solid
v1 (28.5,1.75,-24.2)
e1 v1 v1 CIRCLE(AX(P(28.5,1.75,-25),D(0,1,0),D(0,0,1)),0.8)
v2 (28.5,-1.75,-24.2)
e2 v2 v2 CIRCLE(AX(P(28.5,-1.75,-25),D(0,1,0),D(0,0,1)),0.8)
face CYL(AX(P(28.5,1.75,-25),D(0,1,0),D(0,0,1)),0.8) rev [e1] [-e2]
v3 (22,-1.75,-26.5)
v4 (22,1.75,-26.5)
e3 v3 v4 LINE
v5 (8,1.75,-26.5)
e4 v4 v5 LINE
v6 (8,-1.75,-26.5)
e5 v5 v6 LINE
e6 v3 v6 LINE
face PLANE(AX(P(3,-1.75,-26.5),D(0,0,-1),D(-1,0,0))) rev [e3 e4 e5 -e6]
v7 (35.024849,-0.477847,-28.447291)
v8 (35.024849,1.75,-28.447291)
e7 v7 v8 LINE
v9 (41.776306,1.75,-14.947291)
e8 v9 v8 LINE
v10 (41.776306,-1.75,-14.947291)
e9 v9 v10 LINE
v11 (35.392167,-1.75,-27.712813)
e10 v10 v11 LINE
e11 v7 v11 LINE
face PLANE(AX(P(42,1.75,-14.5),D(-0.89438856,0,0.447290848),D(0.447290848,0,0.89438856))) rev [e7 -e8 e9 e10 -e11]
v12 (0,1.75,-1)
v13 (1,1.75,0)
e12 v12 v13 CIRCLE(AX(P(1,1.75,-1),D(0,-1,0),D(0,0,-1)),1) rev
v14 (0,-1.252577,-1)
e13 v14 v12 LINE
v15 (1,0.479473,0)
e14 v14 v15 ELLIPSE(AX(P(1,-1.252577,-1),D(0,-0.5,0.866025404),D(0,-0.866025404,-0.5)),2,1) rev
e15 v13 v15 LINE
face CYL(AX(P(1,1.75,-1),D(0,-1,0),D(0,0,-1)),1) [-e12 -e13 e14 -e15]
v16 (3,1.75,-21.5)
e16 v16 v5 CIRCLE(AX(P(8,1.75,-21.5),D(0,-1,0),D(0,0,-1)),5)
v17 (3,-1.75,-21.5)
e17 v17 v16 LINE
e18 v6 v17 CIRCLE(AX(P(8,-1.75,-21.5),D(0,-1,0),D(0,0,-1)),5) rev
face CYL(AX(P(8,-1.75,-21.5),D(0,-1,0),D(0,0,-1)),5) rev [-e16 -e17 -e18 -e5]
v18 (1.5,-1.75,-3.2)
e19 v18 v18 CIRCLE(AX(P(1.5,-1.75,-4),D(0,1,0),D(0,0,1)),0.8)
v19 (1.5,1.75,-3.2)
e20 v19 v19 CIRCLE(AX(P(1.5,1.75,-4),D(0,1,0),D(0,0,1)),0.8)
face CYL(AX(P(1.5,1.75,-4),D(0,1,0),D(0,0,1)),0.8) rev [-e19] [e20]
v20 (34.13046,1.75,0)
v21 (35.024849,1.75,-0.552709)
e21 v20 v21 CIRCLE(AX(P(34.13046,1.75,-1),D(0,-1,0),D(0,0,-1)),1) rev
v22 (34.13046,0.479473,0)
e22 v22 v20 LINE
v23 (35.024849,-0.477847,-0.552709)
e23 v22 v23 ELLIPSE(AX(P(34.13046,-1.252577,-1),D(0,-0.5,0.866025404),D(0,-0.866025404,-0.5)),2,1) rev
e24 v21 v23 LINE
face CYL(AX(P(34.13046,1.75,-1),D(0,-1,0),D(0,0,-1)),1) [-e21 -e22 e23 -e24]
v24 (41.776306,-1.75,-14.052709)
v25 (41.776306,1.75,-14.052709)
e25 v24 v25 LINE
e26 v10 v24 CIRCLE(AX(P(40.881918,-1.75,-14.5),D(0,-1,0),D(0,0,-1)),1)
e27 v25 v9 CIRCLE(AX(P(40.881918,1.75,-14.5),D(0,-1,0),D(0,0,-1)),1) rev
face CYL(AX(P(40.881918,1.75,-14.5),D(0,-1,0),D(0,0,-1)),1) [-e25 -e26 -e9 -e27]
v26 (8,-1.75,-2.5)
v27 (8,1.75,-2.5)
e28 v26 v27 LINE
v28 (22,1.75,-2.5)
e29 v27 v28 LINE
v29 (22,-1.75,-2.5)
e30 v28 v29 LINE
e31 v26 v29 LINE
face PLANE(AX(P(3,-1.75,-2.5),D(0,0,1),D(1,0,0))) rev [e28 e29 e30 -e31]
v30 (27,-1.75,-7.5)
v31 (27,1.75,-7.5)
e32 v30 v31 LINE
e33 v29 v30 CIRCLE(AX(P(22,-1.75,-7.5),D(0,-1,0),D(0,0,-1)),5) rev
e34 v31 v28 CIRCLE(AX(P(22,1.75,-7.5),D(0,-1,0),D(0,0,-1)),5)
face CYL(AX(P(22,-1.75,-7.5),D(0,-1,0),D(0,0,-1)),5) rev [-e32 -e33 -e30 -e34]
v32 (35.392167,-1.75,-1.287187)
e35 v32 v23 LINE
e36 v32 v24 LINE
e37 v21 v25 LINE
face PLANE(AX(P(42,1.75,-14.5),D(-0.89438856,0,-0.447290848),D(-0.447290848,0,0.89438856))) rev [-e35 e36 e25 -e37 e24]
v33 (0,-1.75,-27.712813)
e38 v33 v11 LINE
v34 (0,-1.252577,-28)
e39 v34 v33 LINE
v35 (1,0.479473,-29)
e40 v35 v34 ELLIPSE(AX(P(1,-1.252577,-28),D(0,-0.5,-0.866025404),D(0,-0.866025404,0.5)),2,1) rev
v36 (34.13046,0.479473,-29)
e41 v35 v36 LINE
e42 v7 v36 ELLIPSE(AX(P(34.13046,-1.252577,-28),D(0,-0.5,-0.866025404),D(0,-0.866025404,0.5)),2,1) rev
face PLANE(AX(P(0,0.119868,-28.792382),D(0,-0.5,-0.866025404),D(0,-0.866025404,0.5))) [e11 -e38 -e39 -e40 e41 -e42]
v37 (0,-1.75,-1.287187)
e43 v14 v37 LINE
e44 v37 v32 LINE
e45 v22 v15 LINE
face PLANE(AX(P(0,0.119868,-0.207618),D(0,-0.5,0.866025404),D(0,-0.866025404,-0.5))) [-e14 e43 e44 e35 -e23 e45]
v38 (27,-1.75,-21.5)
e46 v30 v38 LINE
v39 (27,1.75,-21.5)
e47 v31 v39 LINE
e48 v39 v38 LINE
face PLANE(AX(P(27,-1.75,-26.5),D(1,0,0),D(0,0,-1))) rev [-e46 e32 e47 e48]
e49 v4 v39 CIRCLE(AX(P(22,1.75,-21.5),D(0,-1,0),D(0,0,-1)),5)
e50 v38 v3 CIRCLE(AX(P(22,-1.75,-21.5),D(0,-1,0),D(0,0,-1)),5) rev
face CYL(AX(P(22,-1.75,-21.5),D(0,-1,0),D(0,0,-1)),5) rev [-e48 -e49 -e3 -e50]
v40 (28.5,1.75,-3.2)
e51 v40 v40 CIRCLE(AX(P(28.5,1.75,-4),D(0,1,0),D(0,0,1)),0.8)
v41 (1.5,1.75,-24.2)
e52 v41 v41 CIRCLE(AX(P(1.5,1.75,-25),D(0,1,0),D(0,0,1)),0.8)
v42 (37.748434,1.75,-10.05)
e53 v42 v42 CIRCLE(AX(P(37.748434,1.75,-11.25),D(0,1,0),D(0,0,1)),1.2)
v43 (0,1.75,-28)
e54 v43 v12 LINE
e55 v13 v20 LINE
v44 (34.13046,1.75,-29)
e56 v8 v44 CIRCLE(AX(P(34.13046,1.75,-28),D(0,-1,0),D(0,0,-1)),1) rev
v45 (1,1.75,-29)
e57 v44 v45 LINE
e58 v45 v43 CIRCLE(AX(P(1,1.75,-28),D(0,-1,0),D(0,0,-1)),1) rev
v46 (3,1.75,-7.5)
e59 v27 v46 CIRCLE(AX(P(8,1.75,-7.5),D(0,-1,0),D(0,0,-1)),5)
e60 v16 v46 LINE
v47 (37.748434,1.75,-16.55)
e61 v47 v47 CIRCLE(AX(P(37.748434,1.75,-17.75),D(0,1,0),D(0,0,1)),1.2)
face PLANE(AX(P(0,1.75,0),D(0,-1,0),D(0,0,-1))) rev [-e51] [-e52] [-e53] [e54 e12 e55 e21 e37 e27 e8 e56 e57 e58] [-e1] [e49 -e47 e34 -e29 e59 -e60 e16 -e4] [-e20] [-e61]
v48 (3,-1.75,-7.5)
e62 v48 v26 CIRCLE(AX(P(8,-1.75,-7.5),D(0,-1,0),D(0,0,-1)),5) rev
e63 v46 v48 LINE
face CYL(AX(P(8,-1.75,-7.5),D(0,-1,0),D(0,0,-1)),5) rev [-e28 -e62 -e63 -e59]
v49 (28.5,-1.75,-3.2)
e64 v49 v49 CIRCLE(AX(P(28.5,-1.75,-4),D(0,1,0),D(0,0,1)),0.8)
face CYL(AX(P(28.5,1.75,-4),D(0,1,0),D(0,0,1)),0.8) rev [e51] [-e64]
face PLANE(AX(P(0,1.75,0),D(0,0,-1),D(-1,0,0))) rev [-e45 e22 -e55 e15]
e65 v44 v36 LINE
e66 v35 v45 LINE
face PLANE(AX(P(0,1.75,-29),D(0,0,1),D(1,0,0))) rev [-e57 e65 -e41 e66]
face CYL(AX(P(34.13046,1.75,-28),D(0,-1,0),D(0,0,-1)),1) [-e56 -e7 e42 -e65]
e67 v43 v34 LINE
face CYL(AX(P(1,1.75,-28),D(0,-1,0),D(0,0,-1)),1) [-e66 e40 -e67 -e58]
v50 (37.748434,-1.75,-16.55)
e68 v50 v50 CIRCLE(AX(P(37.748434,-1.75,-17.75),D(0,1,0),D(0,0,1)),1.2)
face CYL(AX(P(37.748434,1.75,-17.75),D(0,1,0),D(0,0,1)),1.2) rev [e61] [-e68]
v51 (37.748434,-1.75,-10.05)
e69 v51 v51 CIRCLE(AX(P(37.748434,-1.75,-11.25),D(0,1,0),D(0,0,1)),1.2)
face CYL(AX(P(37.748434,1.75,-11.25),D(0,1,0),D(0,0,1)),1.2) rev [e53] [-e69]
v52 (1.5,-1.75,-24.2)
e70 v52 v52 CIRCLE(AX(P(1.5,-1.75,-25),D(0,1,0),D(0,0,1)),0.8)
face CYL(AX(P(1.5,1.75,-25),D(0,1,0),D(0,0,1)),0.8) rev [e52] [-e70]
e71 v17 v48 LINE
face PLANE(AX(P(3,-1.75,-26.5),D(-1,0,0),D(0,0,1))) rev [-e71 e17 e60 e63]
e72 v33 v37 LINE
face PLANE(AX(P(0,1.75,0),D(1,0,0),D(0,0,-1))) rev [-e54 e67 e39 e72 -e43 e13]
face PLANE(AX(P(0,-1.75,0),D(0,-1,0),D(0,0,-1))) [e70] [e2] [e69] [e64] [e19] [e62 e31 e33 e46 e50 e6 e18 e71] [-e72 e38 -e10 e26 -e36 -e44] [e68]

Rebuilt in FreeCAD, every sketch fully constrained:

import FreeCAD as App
import Part
import Sketcher
Q = App.Units.Quantity


def edges_at(feature, points):
    """Names of the edges that pass closest to the given points."""
    edges = feature.Shape.Edges
    near = lambda p: min(range(len(edges)), key=lambda i: edges[i].distToShape(Part.Vertex(*p))[0])
    return sorted({f"Edge{near(p) + 1}" for p in points})

doc = App.newDocument("Part")
params = doc.addObject("Spreadsheet::Sheet", "Params")
for row, (alias, value) in enumerate([
    ("sketch1_height", "29 mm"),
    ("pad1_length", "3.5 mm"),
    ("sketch2_width", "24 mm"),
    ("fillet_radius", "5 mm"),
    ("sketch3_diameter", "1.6 mm"),
    ("hole_diameter", "1.6 mm"),
    ("fillet2_radius", "1 mm"),
    ("sketch5_diameter", "2.4 mm"),
    ("hole2_diameter", "2.4 mm"),
], start=1):
    params.set(f"A{row}", alias)
    params.set(f"B{row}", "=" + value)
    params.setAlias(f"B{row}", alias)

body = doc.addObject("PartDesign::Body", "Body")

sketch1 = doc.addObject("Sketcher::SketchObject", "Sketch")
body.addObject(sketch1)
sketch1.AttachmentSupport = (doc.XZ_Plane, [""])
sketch1.MapMode = "FlatFace"
sketch1.addGeometry(Part.LineSegment(App.Vector(0, 0, 0), App.Vector(35, 0, 0)), False)
sketch1.addGeometry(Part.LineSegment(App.Vector(35, 0, 0), App.Vector(42, -14, 0)), False)
sketch1.addGeometry(Part.LineSegment(App.Vector(42, -14, 0), App.Vector(35, -29, 0)), False)
sketch1.addGeometry(Part.LineSegment(App.Vector(35, -29, 0), App.Vector(0, -29, 0)), False)
sketch1.addGeometry(Part.LineSegment(App.Vector(0, -29, 0), App.Vector(0, 0, 0)), False)
sketch1.addConstraint(Sketcher.Constraint("Coincident", 0, 2, 1, 1))
sketch1.addConstraint(Sketcher.Constraint("Coincident", 1, 2, 2, 1))
sketch1.addConstraint(Sketcher.Constraint("Coincident", 2, 2, 3, 1))
sketch1.addConstraint(Sketcher.Constraint("Coincident", 3, 2, 4, 1))
sketch1.addConstraint(Sketcher.Constraint("Coincident", 4, 2, 0, 1))
sketch1.addConstraint(Sketcher.Constraint("Horizontal", 0))
sketch1.addConstraint(Sketcher.Constraint("Horizontal", 3))
sketch1.addConstraint(Sketcher.Constraint("Vertical", 4))
sketch1.addConstraint(Sketcher.Constraint("Coincident", 4, 2, -1, 1))
sketch1.addConstraint(Sketcher.Constraint("Vertical", 0, 2, 2, 2))
sketch1.addConstraint(Sketcher.Constraint("Equal", 1, 2))
sketch1.addConstraint(Sketcher.Constraint("DistanceY", 4, 1, 4, 2, Q("29 mm")))
sketch1.addConstraint(Sketcher.Constraint("DistanceX", -1, 1, 1, 2, Q("42 mm")))
sketch1.addConstraint(Sketcher.Constraint("Angle", 1, Q("-63.43 deg")))
sketch1.setExpression("Constraints[11]", "Params.sketch1_height")
pad1 = doc.addObject("PartDesign::Pad", "Pad")
body.addObject(pad1)
pad1.Profile = sketch1
pad1.setExpression("Length", "Params.pad1_length")
pad1.Midplane = True

sketch2 = doc.addObject("Sketcher::SketchObject", "Sketch001")
body.addObject(sketch2)
sketch2.AttachmentSupport = (doc.XZ_Plane, [""])
sketch2.MapMode = "FlatFace"
sketch2.addGeometry(Part.LineSegment(App.Vector(3, -26, 0), App.Vector(3, -2, 0)), False)
sketch2.addGeometry(Part.LineSegment(App.Vector(3, -2, 0), App.Vector(27, -2, 0)), False)
sketch2.addGeometry(Part.LineSegment(App.Vector(27, -2, 0), App.Vector(27, -26, 0)), False)
sketch2.addGeometry(Part.LineSegment(App.Vector(27, -26, 0), App.Vector(3, -26, 0)), False)
sketch2.addConstraint(Sketcher.Constraint("Coincident", 0, 2, 1, 1))
sketch2.addConstraint(Sketcher.Constraint("Coincident", 1, 2, 2, 1))
sketch2.addConstraint(Sketcher.Constraint("Coincident", 2, 2, 3, 1))
sketch2.addConstraint(Sketcher.Constraint("Coincident", 3, 2, 0, 1))
sketch2.addConstraint(Sketcher.Constraint("Vertical", 0))
sketch2.addConstraint(Sketcher.Constraint("Horizontal", 1))
sketch2.addConstraint(Sketcher.Constraint("Vertical", 2))
sketch2.addConstraint(Sketcher.Constraint("Horizontal", 3))
sketch2.addConstraint(Sketcher.Constraint("Equal", 3, 0))
sketch2.addConstraint(Sketcher.Constraint("DistanceX", 1, 1, 1, 2, Q("24 mm")))
sketch2.addConstraint(Sketcher.Constraint("DistanceX", -1, 1, 0, 2, Q("3 mm")))
sketch2.addConstraint(Sketcher.Constraint("DistanceY", 0, 2, -1, 1, Q("2.5 mm")))
sketch2.setExpression("Constraints[9]", "Params.sketch2_width")
pocket1 = doc.addObject("PartDesign::Pocket", "Pocket")
body.addObject(pocket1)
pocket1.Profile = sketch2
pocket1.Type = "ThroughAll"
pocket1.Midplane = True
doc.recompute()

fillet = doc.addObject("PartDesign::Fillet", "Fillet")
body.addObject(fillet)
fillet.Base = (pocket1, edges_at(pocket1, [
    (3, 0, -2.5),
    (3, 0, -26.5),
    (27, 0, -26.5),
    (27, 0, -2.5),
]))
fillet.setExpression("Radius", "Params.fillet_radius")

sketch3 = doc.addObject("Sketcher::SketchObject", "Sketch002")
body.addObject(sketch3)
sketch3.AttachmentSupport = (doc.XZ_Plane, [""])
sketch3.MapMode = "FlatFace"
sketch3.AttachmentOffset = App.Placement(App.Vector(0, 0, -1.75), App.Rotation())
sketch3.addGeometry(Part.Circle(App.Vector(1.5, -25, 0), App.Vector(0, 0, 1), 0.8), False)
sketch3.addGeometry(Part.Circle(App.Vector(28.5, -25, 0), App.Vector(0, 0, 1), 0.8), False)
sketch3.addGeometry(Part.Circle(App.Vector(37.7, -17.8, 0), App.Vector(0, 0, 1), 0.8), False)
sketch3.addGeometry(Part.Circle(App.Vector(37.7, -11.2, 0), App.Vector(0, 0, 1), 0.8), False)
sketch3.addGeometry(Part.Circle(App.Vector(28.5, -4, 0), App.Vector(0, 0, 1), 0.8), False)
sketch3.addGeometry(Part.Circle(App.Vector(1.5, -4, 0), App.Vector(0, 0, 1), 0.8), False)
sketch3.addConstraint(Sketcher.Constraint("Equal", 0, 1))
sketch3.addConstraint(Sketcher.Constraint("Equal", 1, 2))
sketch3.addConstraint(Sketcher.Constraint("Equal", 2, 3))
sketch3.addConstraint(Sketcher.Constraint("Equal", 3, 4))
sketch3.addConstraint(Sketcher.Constraint("Equal", 4, 5))
sketch3.addConstraint(Sketcher.Constraint("Horizontal", 0, 3, 1, 3))
sketch3.addConstraint(Sketcher.Constraint("Horizontal", 4, 3, 5, 3))
sketch3.addConstraint(Sketcher.Constraint("Vertical", 2, 3, 3, 3))
sketch3.addConstraint(Sketcher.Constraint("Vertical", 1, 3, 4, 3))
sketch3.addConstraint(Sketcher.Constraint("Vertical", 0, 3, 5, 3))
sketch3.addConstraint(Sketcher.Constraint("Diameter", 0, Q("1.6 mm")))
sketch3.addConstraint(Sketcher.Constraint("DistanceY", 0, 3, -1, 1, Q("25 mm")))
sketch3.addConstraint(Sketcher.Constraint("DistanceY", 4, 3, -1, 1, Q("4 mm")))
sketch3.addConstraint(Sketcher.Constraint("DistanceX", 0, 3, 1, 3, Q("27 mm")))
sketch3.addConstraint(Sketcher.Constraint("DistanceX", -1, 1, 0, 3, Q("1.5 mm")))
sketch3.addConstraint(Sketcher.Constraint("DistanceY", 2, 3, 3, 3, Q("6.5 mm")))
sketch3.addConstraint(Sketcher.Constraint("DistanceY", 2, 3, -1, 1, Q("17.75 mm")))
sketch3.addConstraint(Sketcher.Constraint("DistanceX", -1, 1, 2, 3, Q("37.748434 mm")))
sketch3.setExpression("Constraints[10]", "Params.sketch3_diameter")
doc.recompute()
hole = doc.addObject("PartDesign::Hole", "Hole")
body.addObject(hole)
hole.Profile = sketch3
hole.ThreadType = "None"
hole.setExpression("Diameter", "Params.hole_diameter")
hole.DepthType = "ThroughAll"
hole.Reversed = True
doc.recompute()

fillet2 = doc.addObject("PartDesign::Fillet", "Fillet001")
body.addObject(fillet2)
fillet2.Base = (hole, edges_at(hole, [
    (0, 0, -29),
    (34.748, 0, -29),
    (42, 0, -14.5),
    (34.748, 0, 0),
    (0, 0, 0),
]))
fillet2.setExpression("Radius", "Params.fillet2_radius")

sketch4 = doc.addObject("Sketcher::SketchObject", "Sketch003")
body.addObject(sketch4)
sketch4.Placement = App.Placement(App.Vector(0, 0.119868, -0.207618), App.Rotation(App.Vector(1, 0, 0), App.Vector(0, 0.866025404, 0.5), App.Vector(0, -0.5, 0.866025404), "ZXY"))
sketch4.addGeometry(Part.LineSegment(App.Vector(0, 1.5, 0), App.Vector(0, -2.2, 0)), False)
sketch4.addGeometry(Part.LineSegment(App.Vector(0, -2.2, 0), App.Vector(39.2, -2.2, 0)), False)
sketch4.addGeometry(Part.LineSegment(App.Vector(39.2, -2.2, 0), App.Vector(39.2, 1.5, 0)), False)
sketch4.addGeometry(Part.LineSegment(App.Vector(39.2, 1.5, 0), App.Vector(0, 1.5, 0)), False)
sketch4.addConstraint(Sketcher.Constraint("Coincident", 0, 2, 1, 1))
sketch4.addConstraint(Sketcher.Constraint("Coincident", 1, 2, 2, 1))
sketch4.addConstraint(Sketcher.Constraint("Coincident", 2, 2, 3, 1))
sketch4.addConstraint(Sketcher.Constraint("Coincident", 3, 2, 0, 1))
sketch4.addConstraint(Sketcher.Constraint("Vertical", 0))
sketch4.addConstraint(Sketcher.Constraint("Horizontal", 1))
sketch4.addConstraint(Sketcher.Constraint("Vertical", 2))
sketch4.addConstraint(Sketcher.Constraint("Horizontal", 3))
sketch4.addConstraint(Sketcher.Constraint("PointOnObject", 0, 2, -2))
sketch4.addConstraint(Sketcher.Constraint("DistanceX", 1, 1, 1, 2, Q("39.153964 mm")))
sketch4.addConstraint(Sketcher.Constraint("DistanceY", 0, 2, 0, 1, Q("3.647114 mm")))
sketch4.addConstraint(Sketcher.Constraint("DistanceY", 0, 2, -1, 1, Q("2.159138 mm")))
pocket2 = doc.addObject("PartDesign::Pocket", "Pocket001")
body.addObject(pocket2)
pocket2.Profile = sketch4
pocket2.Type = "ThroughAll"
pocket2.Reversed = True
doc.recompute()

datumplane = doc.addObject("PartDesign::Plane", "DatumPlane")
body.addObject(datumplane)
datumplane.AttachmentSupport = (doc.XY_Plane, [""])
datumplane.MapMode = "FlatFace"
datumplane.AttachmentOffset = App.Placement(App.Vector(0, 0, -14.5), App.Rotation())
mirrored = doc.addObject("PartDesign::Mirrored", "Mirrored")
body.addObject(mirrored)
mirrored.Originals = [pocket2]
mirrored.MirrorPlane = (datumplane, [""])
body.Tip = mirrored

sketch5 = doc.addObject("Sketcher::SketchObject", "Sketch004")
body.addObject(sketch5)
sketch5.AttachmentSupport = (doc.XZ_Plane, [""])
sketch5.MapMode = "FlatFace"
sketch5.AttachmentOffset = App.Placement(App.Vector(0, 0, -1.75), App.Rotation())
sketch5.addGeometry(Part.Circle(App.Vector(37.7, -17.8, 0), App.Vector(0, 0, 1), 1.2), False)
sketch5.addGeometry(Part.Circle(App.Vector(37.7, -11.2, 0), App.Vector(0, 0, 1), 1.2), False)
sketch5.addConstraint(Sketcher.Constraint("Equal", 0, 1))
sketch5.addConstraint(Sketcher.Constraint("Vertical", 0, 3, 1, 3))
sketch5.addConstraint(Sketcher.Constraint("Diameter", 0, Q("2.4 mm")))
sketch5.addConstraint(Sketcher.Constraint("DistanceY", 0, 3, 1, 3, Q("6.5 mm")))
sketch5.addConstraint(Sketcher.Constraint("DistanceY", 0, 3, -1, 1, Q("17.75 mm")))
sketch5.addConstraint(Sketcher.Constraint("DistanceX", -1, 1, 0, 3, Q("37.748434 mm")))
sketch5.setExpression("Constraints[2]", "Params.sketch5_diameter")
doc.recompute()
hole2 = doc.addObject("PartDesign::Hole", "Hole001")
body.addObject(hole2)
hole2.Profile = sketch5
hole2.ThreadType = "None"
hole2.setExpression("Diameter", "Params.hole2_diameter")
hole2.DepthType = "ThroughAll"
hole2.Reversed = True

doc.recompute()
